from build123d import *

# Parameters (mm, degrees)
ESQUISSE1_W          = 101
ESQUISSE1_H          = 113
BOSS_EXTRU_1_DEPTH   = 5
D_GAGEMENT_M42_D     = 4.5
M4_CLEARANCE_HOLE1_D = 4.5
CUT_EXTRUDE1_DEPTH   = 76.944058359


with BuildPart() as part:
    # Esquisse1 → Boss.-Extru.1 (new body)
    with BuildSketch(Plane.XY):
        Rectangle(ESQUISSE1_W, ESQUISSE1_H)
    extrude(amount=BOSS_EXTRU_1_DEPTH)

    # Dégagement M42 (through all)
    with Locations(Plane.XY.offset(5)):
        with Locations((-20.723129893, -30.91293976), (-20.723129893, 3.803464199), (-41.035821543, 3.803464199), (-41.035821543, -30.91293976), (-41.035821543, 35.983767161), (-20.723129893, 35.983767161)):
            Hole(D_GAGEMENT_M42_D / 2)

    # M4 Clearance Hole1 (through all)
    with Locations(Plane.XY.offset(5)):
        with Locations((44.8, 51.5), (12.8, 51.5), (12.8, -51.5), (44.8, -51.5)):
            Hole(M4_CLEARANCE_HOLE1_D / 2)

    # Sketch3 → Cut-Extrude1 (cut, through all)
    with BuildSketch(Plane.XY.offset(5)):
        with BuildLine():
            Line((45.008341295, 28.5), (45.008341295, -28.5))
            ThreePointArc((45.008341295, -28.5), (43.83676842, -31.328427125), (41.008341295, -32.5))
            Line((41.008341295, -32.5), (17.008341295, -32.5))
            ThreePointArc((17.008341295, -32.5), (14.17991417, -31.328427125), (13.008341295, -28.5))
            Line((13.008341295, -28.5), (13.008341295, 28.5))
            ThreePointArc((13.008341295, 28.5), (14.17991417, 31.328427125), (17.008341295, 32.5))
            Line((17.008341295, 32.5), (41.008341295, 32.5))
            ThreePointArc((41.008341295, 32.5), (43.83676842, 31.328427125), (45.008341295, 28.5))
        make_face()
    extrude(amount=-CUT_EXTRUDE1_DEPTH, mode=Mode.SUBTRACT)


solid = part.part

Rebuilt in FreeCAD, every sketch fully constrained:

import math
import FreeCAD as App
import Part
import Sketcher

doc = App.newDocument("Part")
body = doc.addObject("PartDesign::Body", "Body")

sketch1 = doc.addObject("Sketcher::SketchObject", "Sketch")
body.addObject(sketch1)
sketch1.AttachmentSupport = (doc.XY_Plane, [""])
sketch1.MapMode = "FlatFace"
sketch1.addGeometry(Part.LineSegment(App.Vector(-50, 56, 0), App.Vector(-50, -56, 0)), False)
sketch1.addGeometry(Part.LineSegment(App.Vector(-50, -56, 0), App.Vector(50, -56, 0)), False)
sketch1.addGeometry(Part.LineSegment(App.Vector(50, -56, 0), App.Vector(50, 56, 0)), False)
sketch1.addGeometry(Part.LineSegment(App.Vector(50, 56, 0), App.Vector(-50, 56, 0)), False)
sketch1.addConstraint(Sketcher.Constraint("Coincident", 0, 2, 1, 1))
sketch1.addConstraint(Sketcher.Constraint("Coincident", 1, 2, 2, 1))
sketch1.addConstraint(Sketcher.Constraint("Coincident", 2, 2, 3, 1))
sketch1.addConstraint(Sketcher.Constraint("Coincident", 3, 2, 0, 1))
sketch1.addConstraint(Sketcher.Constraint("Vertical", 0))
sketch1.addConstraint(Sketcher.Constraint("Horizontal", 1))
sketch1.addConstraint(Sketcher.Constraint("Vertical", 2))
sketch1.addConstraint(Sketcher.Constraint("Horizontal", 3))
sketch1.addConstraint(Sketcher.Constraint("Symmetric", 0, 2, 2, 2, -1, 1))
sketch1.addConstraint(Sketcher.Constraint("DistanceX", 1, 1, 1, 2, 101.0))
sketch1.addConstraint(Sketcher.Constraint("DistanceY", 0, 2, 0, 1, 113.0))
pad1 = doc.addObject("PartDesign::Pad", "Pad")
body.addObject(pad1)
pad1.Profile = sketch1
pad1.Length = 5

sketch2 = doc.addObject("Sketcher::SketchObject", "Sketch001")
body.addObject(sketch2)
sketch2.AttachmentSupport = (doc.XY_Plane, [""])
sketch2.MapMode = "FlatFace"
sketch2.AttachmentOffset = App.Placement(App.Vector(0, 0, 5), App.Rotation())
sketch2.addGeometry(Part.Circle(App.Vector(-20.7, -30.9, 0), App.Vector(0, 0, 1), 2.2), False)
sketch2.addGeometry(Part.Circle(App.Vector(-20.7, 3.8, 0), App.Vector(0, 0, 1), 2.2), False)
sketch2.addGeometry(Part.Circle(App.Vector(-41, 3.8, 0), App.Vector(0, 0, 1), 2.2), False)
sketch2.addGeometry(Part.Circle(App.Vector(-41, -30.9, 0), App.Vector(0, 0, 1), 2.2), False)
sketch2.addGeometry(Part.Circle(App.Vector(-41, 36, 0), App.Vector(0, 0, 1), 2.2), False)
sketch2.addGeometry(Part.Circle(App.Vector(-20.7, 36, 0), App.Vector(0, 0, 1), 2.2), False)
sketch2.addConstraint(Sketcher.Constraint("Equal", 0, 1))
sketch2.addConstraint(Sketcher.Constraint("Equal", 1, 2))
sketch2.addConstraint(Sketcher.Constraint("Equal", 2, 3))
sketch2.addConstraint(Sketcher.Constraint("Equal", 3, 4))
sketch2.addConstraint(Sketcher.Constraint("Equal", 4, 5))
sketch2.addConstraint(Sketcher.Constraint("Horizontal", 1, 3, 2, 3))
sketch2.addConstraint(Sketcher.Constraint("Horizontal", 0, 3, 3, 3))
sketch2.addConstraint(Sketcher.Constraint("Horizontal", 4, 3, 5, 3))
sketch2.addConstraint(Sketcher.Constraint("Vertical", 0, 3, 1, 3))
sketch2.addConstraint(Sketcher.Constraint("Vertical", 2, 3, 3, 3))
sketch2.addConstraint(Sketcher.Constraint("Vertical", 3, 3, 4, 3))
sketch2.addConstraint(Sketcher.Constraint("Vertical", 1, 3, 5, 3))
sketch2.addConstraint(Sketcher.Constraint("Diameter", 0, 4.5))
sketch2.addConstraint(Sketcher.Constraint("DistanceX", 0, 3, -1, 1, 20.72313))
sketch2.addConstraint(Sketcher.Constraint("DistanceY", 0, 3, -1, 1, 30.91294))
sketch2.addConstraint(Sketcher.Constraint("DistanceX", 2, 3, -1, 1, 41.035822))
sketch2.addConstraint(Sketcher.Constraint("DistanceY", -1, 1, 1, 3, 3.803464))
sketch2.addConstraint(Sketcher.Constraint("DistanceY", -1, 1, 4, 3, 35.983767))
doc.recompute()
hole = doc.addObject("PartDesign::Hole", "Hole")
body.addObject(hole)
hole.Profile = sketch2
hole.ThreadType = "None"
hole.Diameter = 4.5
hole.DepthType = "ThroughAll"

sketch3 = doc.addObject("Sketcher::SketchObject", "Sketch002")
body.addObject(sketch3)
sketch3.AttachmentSupport = (doc.XY_Plane, [""])
sketch3.MapMode = "FlatFace"
sketch3.AttachmentOffset = App.Placement(App.Vector(0, 0, 5), App.Rotation())
sketch3.addGeometry(Part.Circle(App.Vector(44.8, 51.5, 0), App.Vector(0, 0, 1), 2.2), False)
sketch3.addGeometry(Part.Circle(App.Vector(12.8, 51.5, 0), App.Vector(0, 0, 1), 2.2), False)
sketch3.addGeometry(Part.Circle(App.Vector(12.8, -51.5, 0), App.Vector(0, 0, 1), 2.2), False)
sketch3.addGeometry(Part.Circle(App.Vector(44.8, -51.5, 0), App.Vector(0, 0, 1), 2.2), False)
sketch3.addConstraint(Sketcher.Constraint("Equal", 0, 1))
sketch3.addConstraint(Sketcher.Constraint("Equal", 1, 2))
sketch3.addConstraint(Sketcher.Constraint("Equal", 2, 3))
sketch3.addConstraint(Sketcher.Constraint("Symmetric", 1, 3, 2, 3, -1))
sketch3.addConstraint(Sketcher.Constraint("Symmetric", 0, 3, 3, 3, -1))
sketch3.addConstraint(Sketcher.Constraint("Horizontal", 0, 3, 1, 3))
sketch3.addConstraint(Sketcher.Constraint("Diameter", 0, 4.5))
sketch3.addConstraint(Sketcher.Constraint("DistanceX", 1, 3, 0, 3, 32.0))
sketch3.addConstraint(Sketcher.Constraint("DistanceY", 2, 3, 1, 3, 103.0))
sketch3.addConstraint(Sketcher.Constraint("DistanceX", -1, 1, 0, 3, 44.8))
doc.recompute()
hole2 = doc.addObject("PartDesign::Hole", "Hole001")
body.addObject(hole2)
hole2.Profile = sketch3
hole2.ThreadType = "None"
hole2.Diameter = 4.5
hole2.DepthType = "ThroughAll"

sketch4 = doc.addObject("Sketcher::SketchObject", "Sketch003")
body.addObject(sketch4)
sketch4.AttachmentSupport = (doc.XY_Plane, [""])
sketch4.MapMode = "FlatFace"
sketch4.AttachmentOffset = App.Placement(App.Vector(0, 0, 5), App.Rotation())
sketch4.addGeometry(Part.LineSegment(App.Vector(45, -28.5, 0), App.Vector(45, 28.5, 0)), False)
sketch4.addGeometry(Part.ArcOfCircle(Part.Circle(App.Vector(41, 28.5, 0), App.Vector(0, 0, 1), 4), math.radians(0), math.radians(90)), False)
sketch4.addGeometry(Part.LineSegment(App.Vector(41, 32.5, 0), App.Vector(17, 32.5, 0)), False)
sketch4.addGeometry(Part.ArcOfCircle(Part.Circle(App.Vector(17, 28.5, 0), App.Vector(0, 0, 1), 4), math.radians(90), math.radians(180)), False)
sketch4.addGeometry(Part.LineSegment(App.Vector(13, 28.5, 0), App.Vector(13, -28.5, 0)), False)
sketch4.addGeometry(Part.ArcOfCircle(Part.Circle(App.Vector(17, -28.5, 0), App.Vector(0, 0, 1), 4), math.radians(180), math.radians(270)), False)
sketch4.addGeometry(Part.LineSegment(App.Vector(17, -32.5, 0), App.Vector(41, -32.5, 0)), False)
sketch4.addGeometry(Part.ArcOfCircle(Part.Circle(App.Vector(41, -28.5, 0), App.Vector(0, 0, 1), 4), math.radians(-90), math.radians(0)), False)
sketch4.addConstraint(Sketcher.Constraint("Tangent", 0, 2, 1, 1))
sketch4.addConstraint(Sketcher.Constraint("Tangent", 1, 2, 2, 1))
sketch4.addConstraint(Sketcher.Constraint("Tangent", 2, 2, 3, 1))
sketch4.addConstraint(Sketcher.Constraint("Tangent", 3, 2, 4, 1))
sketch4.addConstraint(Sketcher.Constraint("Tangent", 4, 2, 5, 1))
sketch4.addConstraint(Sketcher.Constraint("Tangent", 5, 2, 6, 1))
sketch4.addConstraint(Sketcher.Constraint("Tangent", 6, 2, 7, 1))
sketch4.addConstraint(Sketcher.Constraint("Tangent", 7, 2, 0, 1))
sketch4.addConstraint(Sketcher.Constraint("Vertical", 0))
sketch4.addConstraint(Sketcher.Constraint("Horizontal", 2))
sketch4.addConstraint(Sketcher.Constraint("Vertical", 4))
sketch4.addConstraint(Sketcher.Constraint("Horizontal", 6))
sketch4.addConstraint(Sketcher.Constraint("Equal", 1, 3))
sketch4.addConstraint(Sketcher.Constraint("Equal", 3, 5))
sketch4.addConstraint(Sketcher.Constraint("Equal", 5, 7))
sketch4.addConstraint(Sketcher.Constraint("Radius", 1, 4.0))
sketch4.addConstraint(Sketcher.Constraint("DistanceX", 2, 2, 2, 1, 24.0))
sketch4.addConstraint(Sketcher.Constraint("DistanceY", 0, 1, 0, 2, 57.0))
sketch4.addConstraint(Sketcher.Constraint("DistanceY", -1, 1, 1, 3, 28.5))
sketch4.addConstraint(Sketcher.Constraint("DistanceX", -1, 1, 1, 3, 41.008341))
pocket1 = doc.addObject("PartDesign::Pocket", "Pocket")
body.addObject(pocket1)
pocket1.Profile = sketch4
pocket1.Type = "ThroughAll"

doc.recompute()
